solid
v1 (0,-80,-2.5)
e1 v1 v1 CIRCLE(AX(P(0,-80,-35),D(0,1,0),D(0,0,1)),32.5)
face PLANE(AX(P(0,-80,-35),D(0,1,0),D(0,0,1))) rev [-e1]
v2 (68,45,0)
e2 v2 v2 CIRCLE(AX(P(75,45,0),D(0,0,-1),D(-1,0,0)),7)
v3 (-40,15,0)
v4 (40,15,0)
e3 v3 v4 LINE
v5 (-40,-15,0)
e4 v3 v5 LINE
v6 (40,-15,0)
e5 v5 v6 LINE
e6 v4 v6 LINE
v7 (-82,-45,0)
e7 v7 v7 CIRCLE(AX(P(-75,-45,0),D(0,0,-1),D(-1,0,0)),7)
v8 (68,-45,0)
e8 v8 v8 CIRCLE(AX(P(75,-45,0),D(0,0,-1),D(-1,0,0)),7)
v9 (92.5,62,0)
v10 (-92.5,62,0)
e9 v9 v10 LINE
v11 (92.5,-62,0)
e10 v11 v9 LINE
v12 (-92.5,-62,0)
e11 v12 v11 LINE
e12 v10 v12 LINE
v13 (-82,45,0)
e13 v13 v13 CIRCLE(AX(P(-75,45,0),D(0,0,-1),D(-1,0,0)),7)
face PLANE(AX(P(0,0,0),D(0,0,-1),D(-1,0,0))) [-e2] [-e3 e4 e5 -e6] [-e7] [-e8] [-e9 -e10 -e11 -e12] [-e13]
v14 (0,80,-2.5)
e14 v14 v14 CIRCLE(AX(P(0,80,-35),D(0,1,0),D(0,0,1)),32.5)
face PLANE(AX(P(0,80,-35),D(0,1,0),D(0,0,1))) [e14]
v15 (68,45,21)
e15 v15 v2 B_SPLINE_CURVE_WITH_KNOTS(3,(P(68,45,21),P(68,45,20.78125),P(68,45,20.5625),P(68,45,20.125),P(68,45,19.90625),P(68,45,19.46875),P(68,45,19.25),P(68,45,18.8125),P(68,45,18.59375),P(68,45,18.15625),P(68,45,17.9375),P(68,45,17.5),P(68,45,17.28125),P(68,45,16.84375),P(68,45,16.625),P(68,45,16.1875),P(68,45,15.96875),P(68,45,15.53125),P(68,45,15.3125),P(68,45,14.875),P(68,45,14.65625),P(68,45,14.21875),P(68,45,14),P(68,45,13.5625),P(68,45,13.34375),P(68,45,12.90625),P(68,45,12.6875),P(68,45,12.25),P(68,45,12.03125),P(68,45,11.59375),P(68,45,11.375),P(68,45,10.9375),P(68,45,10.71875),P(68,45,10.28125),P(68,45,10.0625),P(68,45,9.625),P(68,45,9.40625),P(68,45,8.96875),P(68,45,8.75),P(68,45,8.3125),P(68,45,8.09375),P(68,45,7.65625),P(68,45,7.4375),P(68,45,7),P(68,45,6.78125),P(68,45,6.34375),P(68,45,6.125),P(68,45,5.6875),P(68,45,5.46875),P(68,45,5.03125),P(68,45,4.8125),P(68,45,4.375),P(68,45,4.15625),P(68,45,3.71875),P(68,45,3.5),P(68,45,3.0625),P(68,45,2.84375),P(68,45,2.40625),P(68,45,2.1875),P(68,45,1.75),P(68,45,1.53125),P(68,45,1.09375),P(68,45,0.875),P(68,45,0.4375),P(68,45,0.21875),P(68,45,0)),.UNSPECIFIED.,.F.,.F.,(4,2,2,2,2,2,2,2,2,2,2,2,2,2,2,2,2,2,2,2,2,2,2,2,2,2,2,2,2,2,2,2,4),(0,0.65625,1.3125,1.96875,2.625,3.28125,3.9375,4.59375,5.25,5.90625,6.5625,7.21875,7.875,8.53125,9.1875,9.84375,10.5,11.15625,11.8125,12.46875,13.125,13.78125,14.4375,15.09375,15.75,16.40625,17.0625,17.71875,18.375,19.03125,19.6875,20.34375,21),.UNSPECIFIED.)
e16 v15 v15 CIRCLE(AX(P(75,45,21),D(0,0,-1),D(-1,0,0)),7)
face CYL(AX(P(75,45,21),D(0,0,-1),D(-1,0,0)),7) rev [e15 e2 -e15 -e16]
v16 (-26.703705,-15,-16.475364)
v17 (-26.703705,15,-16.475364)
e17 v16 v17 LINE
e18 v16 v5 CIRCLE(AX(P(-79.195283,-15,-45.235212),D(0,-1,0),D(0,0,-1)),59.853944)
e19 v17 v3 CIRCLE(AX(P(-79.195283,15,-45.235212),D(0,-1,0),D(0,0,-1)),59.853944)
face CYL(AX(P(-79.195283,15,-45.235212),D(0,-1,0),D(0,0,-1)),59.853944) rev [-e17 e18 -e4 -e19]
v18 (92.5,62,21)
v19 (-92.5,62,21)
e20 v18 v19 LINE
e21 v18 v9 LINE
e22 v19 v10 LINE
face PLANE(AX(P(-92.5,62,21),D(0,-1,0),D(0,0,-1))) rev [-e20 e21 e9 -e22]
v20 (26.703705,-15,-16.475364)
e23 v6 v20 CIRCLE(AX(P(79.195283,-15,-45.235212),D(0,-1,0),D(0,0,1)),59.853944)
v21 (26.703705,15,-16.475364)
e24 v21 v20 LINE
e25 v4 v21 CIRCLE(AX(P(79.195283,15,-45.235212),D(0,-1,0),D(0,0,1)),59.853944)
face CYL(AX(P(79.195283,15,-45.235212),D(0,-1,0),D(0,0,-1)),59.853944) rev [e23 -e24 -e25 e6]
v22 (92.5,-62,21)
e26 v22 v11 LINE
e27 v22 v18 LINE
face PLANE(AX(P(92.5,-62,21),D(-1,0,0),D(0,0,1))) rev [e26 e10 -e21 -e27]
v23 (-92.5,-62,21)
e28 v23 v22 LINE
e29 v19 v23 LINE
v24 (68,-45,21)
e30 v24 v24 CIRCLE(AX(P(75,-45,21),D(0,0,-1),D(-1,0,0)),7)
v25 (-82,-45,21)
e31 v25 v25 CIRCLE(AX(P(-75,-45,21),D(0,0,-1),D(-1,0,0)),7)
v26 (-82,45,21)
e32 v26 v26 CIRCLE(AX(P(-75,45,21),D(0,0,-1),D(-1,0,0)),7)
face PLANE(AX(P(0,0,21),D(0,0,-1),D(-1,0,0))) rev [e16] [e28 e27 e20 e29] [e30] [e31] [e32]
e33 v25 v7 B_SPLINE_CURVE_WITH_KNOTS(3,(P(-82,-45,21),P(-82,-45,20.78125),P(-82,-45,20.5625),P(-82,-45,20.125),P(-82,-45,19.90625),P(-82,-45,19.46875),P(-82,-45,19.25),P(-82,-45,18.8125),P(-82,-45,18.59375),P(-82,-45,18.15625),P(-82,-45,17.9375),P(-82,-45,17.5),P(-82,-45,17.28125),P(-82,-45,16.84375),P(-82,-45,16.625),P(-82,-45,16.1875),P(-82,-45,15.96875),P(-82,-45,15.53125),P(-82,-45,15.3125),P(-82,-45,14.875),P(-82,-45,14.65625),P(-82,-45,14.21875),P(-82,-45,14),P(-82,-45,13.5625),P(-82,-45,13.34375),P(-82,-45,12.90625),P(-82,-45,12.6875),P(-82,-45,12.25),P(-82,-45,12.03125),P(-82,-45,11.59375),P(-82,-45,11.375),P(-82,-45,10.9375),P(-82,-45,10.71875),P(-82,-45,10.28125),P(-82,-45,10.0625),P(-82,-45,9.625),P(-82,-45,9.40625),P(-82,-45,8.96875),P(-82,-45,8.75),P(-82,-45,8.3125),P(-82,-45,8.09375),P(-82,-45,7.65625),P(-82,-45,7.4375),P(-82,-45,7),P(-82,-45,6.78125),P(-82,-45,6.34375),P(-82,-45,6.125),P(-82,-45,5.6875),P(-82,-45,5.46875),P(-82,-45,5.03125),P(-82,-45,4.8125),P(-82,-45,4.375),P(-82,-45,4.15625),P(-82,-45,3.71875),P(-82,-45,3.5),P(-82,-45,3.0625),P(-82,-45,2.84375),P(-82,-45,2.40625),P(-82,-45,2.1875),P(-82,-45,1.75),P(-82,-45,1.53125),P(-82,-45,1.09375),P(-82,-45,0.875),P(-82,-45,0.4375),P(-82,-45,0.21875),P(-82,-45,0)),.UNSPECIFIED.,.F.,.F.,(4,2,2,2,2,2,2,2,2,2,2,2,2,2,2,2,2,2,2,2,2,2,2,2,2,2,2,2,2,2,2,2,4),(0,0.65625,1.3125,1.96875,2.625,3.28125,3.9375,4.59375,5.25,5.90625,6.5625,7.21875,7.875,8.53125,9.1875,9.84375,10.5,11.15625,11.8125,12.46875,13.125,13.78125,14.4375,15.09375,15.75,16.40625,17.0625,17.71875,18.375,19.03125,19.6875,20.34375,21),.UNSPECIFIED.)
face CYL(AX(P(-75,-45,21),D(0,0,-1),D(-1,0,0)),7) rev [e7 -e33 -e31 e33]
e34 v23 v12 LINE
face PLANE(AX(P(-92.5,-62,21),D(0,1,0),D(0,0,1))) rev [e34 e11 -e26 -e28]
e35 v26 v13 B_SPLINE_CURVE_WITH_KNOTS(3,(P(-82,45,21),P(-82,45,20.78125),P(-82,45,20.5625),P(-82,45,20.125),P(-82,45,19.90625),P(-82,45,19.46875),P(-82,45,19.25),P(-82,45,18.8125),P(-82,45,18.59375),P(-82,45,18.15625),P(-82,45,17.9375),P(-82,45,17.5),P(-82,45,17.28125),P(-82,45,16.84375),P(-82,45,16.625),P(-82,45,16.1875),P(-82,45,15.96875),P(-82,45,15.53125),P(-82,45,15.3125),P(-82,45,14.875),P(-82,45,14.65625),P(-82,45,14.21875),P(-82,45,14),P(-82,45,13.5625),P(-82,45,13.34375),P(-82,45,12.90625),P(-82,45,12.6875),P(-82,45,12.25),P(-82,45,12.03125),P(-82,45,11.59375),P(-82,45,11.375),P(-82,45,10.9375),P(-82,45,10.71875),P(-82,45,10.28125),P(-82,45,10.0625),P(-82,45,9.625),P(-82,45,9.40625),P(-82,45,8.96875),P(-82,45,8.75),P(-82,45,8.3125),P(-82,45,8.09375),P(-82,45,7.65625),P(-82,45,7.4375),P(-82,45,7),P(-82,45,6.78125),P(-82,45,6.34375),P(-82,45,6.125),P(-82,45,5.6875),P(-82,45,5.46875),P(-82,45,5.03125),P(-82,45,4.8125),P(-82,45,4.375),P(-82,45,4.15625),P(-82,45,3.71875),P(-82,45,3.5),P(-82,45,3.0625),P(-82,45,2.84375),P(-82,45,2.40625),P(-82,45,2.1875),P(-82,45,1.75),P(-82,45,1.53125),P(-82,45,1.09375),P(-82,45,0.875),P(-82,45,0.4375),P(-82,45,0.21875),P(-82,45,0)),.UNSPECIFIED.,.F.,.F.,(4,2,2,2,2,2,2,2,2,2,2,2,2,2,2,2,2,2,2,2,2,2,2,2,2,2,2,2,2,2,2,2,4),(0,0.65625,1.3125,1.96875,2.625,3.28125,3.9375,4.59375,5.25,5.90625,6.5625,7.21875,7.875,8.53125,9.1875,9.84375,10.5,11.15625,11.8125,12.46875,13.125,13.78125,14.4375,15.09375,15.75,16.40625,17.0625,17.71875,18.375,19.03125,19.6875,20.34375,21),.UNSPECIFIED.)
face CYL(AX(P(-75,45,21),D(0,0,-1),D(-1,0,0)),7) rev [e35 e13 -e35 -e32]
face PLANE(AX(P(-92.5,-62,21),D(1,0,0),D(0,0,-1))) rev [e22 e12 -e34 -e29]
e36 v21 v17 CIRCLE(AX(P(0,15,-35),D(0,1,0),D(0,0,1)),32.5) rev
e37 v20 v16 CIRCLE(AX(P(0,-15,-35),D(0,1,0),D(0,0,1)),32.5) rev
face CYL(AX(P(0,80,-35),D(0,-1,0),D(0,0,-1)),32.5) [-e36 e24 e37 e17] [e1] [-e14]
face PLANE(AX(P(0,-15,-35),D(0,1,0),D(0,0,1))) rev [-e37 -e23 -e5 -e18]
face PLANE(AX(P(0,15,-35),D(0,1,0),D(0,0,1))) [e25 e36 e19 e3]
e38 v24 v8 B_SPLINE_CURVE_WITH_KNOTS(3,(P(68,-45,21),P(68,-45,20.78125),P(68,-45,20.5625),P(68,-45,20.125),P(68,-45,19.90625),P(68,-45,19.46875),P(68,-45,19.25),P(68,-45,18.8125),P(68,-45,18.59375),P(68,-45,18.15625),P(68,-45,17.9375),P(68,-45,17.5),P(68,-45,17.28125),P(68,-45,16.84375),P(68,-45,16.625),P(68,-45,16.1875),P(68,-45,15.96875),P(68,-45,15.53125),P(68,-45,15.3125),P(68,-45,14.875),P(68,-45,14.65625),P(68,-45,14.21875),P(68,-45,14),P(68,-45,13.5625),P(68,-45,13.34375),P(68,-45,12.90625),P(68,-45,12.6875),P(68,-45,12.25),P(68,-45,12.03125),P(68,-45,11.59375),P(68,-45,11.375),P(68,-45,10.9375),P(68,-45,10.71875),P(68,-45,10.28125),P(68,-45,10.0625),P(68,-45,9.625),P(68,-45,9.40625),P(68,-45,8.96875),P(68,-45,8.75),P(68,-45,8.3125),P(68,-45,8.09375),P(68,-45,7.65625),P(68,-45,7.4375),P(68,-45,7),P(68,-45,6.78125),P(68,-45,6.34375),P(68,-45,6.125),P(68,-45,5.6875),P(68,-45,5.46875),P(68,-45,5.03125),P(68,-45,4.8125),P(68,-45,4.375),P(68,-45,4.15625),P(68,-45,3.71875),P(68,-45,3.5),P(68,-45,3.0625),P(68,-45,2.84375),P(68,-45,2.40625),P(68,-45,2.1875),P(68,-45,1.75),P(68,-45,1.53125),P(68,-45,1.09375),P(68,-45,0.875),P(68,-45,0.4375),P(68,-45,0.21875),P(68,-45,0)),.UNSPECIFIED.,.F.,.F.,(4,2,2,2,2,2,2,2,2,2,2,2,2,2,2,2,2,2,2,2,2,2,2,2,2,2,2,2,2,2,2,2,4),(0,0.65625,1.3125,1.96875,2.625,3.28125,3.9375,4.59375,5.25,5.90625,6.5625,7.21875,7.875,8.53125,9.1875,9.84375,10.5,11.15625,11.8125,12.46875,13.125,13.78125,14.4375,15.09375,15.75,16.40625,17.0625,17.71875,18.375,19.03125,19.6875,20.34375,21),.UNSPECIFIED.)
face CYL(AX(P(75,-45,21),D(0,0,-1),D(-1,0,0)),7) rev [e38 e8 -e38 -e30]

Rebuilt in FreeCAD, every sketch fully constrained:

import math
import FreeCAD as App
import Part
import Sketcher

doc = App.newDocument("Part")
body = doc.addObject("PartDesign::Body", "Body")

# Sketch on XY plane
sketch1 = body.newObject("Sketcher::SketchObject", "Sketch")
sketch1.AttachmentSupport = (doc.getObject("XY_Plane"), [""])
sketch1.MapMode = "FlatFace"
sketch1.addGeometry([
    Part.LineSegment(App.Vector(-92, 62, 0), App.Vector(-92, -62, 0)),
    Part.LineSegment(App.Vector(-92, -62, 0), App.Vector(92, -62, 0)),
    Part.LineSegment(App.Vector(92, -62, 0), App.Vector(92, 62, 0)),
    Part.LineSegment(App.Vector(92, 62, 0), App.Vector(-92, 62, 0)),
], False)
sketch1.addConstraint([
    Sketcher.Constraint("Coincident", 0, 2, 1, 1),
    Sketcher.Constraint("Coincident", 1, 2, 2, 1),
    Sketcher.Constraint("Coincident", 2, 2, 3, 1),
    Sketcher.Constraint("Coincident", 3, 2, 0, 1),
    Sketcher.Constraint("Vertical", 0),
    Sketcher.Constraint("Horizontal", 1),
    Sketcher.Constraint("Vertical", 2),
    Sketcher.Constraint("Horizontal", 3),
    Sketcher.Constraint("Symmetric", 0, 2, 2, 2, -1, 1),
    Sketcher.Constraint("DistanceX", 1, 1, 1, 2, 185.0),
    Sketcher.Constraint("DistanceY", 0, 2, 0, 1, 124.0),
])
pad1 = body.newObject("PartDesign::Pad", "Pad")
pad1.Profile = sketch1
pad1.Length = 21

# Sketch on XZ plane
sketch2 = body.newObject("Sketcher::SketchObject", "Sketch001")
sketch2.AttachmentSupport = (doc.getObject("XZ_Plane"), [""])
sketch2.MapMode = "FlatFace"
sketch2.addGeometry([
    Part.LineSegment(App.Vector(-40, 0, 0), App.Vector(40, 0, 0)),
    Part.ArcOfCircle(Part.Circle(App.Vector(79, -45, 0), App.Vector(0, 0, 1), 60), math.radians(131), math.radians(173)),
    Part.ArcOfCircle(Part.Circle(App.Vector(0, -35, 0), App.Vector(0, 0, 1), 20), math.radians(-7), math.radians(187)),
    Part.ArcOfCircle(Part.Circle(App.Vector(-79, -45, 0), App.Vector(0, 0, 1), 60), math.radians(7), math.radians(49)),
], False)
sketch2.addConstraint([
    Sketcher.Constraint("Coincident", 0, 2, 1, 1),
    Sketcher.Constraint("Tangent", 1, 2, 2, 1),
    Sketcher.Constraint("Tangent", 2, 2, 3, 1),
    Sketcher.Constraint("Coincident", 3, 2, 0, 1),
    Sketcher.Constraint("Horizontal", 0),
    Sketcher.Constraint("Equal", 1, 3),
    Sketcher.Constraint("Symmetric", 0, 2, 3, 2, -1, 1),
    Sketcher.Constraint("PointOnObject", 2, 3, -2),
    Sketcher.Constraint("Radius", 2, 20.0),
    Sketcher.Constraint("DistanceX", 0, 1, 0, 2, 80.0),
    Sketcher.Constraint("DistanceY", 2, 3, -1, 1, 35.0),
    Sketcher.Constraint("Radius", 1, 59.853944),
])
pad2 = body.newObject("PartDesign::Pad", "Pad001")
pad2.Profile = sketch2
pad2.Length = 30
pad2.Midplane = True

# Sketch on XZ plane
sketch3 = body.newObject("Sketcher::SketchObject", "Sketch002")
sketch3.AttachmentSupport = (doc.getObject("XZ_Plane"), [""])
sketch3.MapMode = "FlatFace"
sketch3.addGeometry(Part.Circle(App.Vector(0, -35, 0), App.Vector(0, 0, 1), 32), False)
sketch3.addConstraint([
    Sketcher.Constraint("PointOnObject", 0, 3, -2),
    Sketcher.Constraint("Diameter", 0, 65.0),
    Sketcher.Constraint("DistanceY", 0, 3, -1, 1, 35.0),
])
pad3 = body.newObject("PartDesign::Pad", "Pad002")
pad3.Profile = sketch3
pad3.Length = 160
pad3.Midplane = True

# Sketch on XY plane
sketch4 = body.newObject("Sketcher::SketchObject", "Sketch003")
sketch4.AttachmentSupport = (doc.getObject("XY_Plane"), [""])
sketch4.MapMode = "FlatFace"
sketch4.addGeometry([
    Part.Circle(App.Vector(75, 45, 0), App.Vector(0, 0, 1), 7),
    Part.Circle(App.Vector(-75, 45, 0), App.Vector(0, 0, 1), 7),
    Part.Circle(App.Vector(-75, -45, 0), App.Vector(0, 0, 1), 7),
    Part.Circle(App.Vector(75, -45, 0), App.Vector(0, 0, 1), 7),
], False)
sketch4.addConstraint([
    Sketcher.Constraint("Equal", 0, 1),
    Sketcher.Constraint("Equal", 1, 2),
    Sketcher.Constraint("Equal", 2, 3),
    Sketcher.Constraint("Symmetric", 0, 3, 2, 3, -1, 1),
    Sketcher.Constraint("Symmetric", 1, 3, 3, 3, -1, 1),
    Sketcher.Constraint("Symmetric", 0, 3, 1, 3, -2),
    Sketcher.Constraint("Diameter", 0, 14.0),
    Sketcher.Constraint("DistanceX", -1, 1, 0, 3, 75.0),
    Sketcher.Constraint("DistanceY", -1, 1, 0, 3, 45.0),
])
pocket1 = body.newObject("PartDesign::Pocket", "Pocket")
pocket1.Profile = sketch4
pocket1.Type = "ThroughAll"
pocket1.Reversed = True

doc.recompute()
